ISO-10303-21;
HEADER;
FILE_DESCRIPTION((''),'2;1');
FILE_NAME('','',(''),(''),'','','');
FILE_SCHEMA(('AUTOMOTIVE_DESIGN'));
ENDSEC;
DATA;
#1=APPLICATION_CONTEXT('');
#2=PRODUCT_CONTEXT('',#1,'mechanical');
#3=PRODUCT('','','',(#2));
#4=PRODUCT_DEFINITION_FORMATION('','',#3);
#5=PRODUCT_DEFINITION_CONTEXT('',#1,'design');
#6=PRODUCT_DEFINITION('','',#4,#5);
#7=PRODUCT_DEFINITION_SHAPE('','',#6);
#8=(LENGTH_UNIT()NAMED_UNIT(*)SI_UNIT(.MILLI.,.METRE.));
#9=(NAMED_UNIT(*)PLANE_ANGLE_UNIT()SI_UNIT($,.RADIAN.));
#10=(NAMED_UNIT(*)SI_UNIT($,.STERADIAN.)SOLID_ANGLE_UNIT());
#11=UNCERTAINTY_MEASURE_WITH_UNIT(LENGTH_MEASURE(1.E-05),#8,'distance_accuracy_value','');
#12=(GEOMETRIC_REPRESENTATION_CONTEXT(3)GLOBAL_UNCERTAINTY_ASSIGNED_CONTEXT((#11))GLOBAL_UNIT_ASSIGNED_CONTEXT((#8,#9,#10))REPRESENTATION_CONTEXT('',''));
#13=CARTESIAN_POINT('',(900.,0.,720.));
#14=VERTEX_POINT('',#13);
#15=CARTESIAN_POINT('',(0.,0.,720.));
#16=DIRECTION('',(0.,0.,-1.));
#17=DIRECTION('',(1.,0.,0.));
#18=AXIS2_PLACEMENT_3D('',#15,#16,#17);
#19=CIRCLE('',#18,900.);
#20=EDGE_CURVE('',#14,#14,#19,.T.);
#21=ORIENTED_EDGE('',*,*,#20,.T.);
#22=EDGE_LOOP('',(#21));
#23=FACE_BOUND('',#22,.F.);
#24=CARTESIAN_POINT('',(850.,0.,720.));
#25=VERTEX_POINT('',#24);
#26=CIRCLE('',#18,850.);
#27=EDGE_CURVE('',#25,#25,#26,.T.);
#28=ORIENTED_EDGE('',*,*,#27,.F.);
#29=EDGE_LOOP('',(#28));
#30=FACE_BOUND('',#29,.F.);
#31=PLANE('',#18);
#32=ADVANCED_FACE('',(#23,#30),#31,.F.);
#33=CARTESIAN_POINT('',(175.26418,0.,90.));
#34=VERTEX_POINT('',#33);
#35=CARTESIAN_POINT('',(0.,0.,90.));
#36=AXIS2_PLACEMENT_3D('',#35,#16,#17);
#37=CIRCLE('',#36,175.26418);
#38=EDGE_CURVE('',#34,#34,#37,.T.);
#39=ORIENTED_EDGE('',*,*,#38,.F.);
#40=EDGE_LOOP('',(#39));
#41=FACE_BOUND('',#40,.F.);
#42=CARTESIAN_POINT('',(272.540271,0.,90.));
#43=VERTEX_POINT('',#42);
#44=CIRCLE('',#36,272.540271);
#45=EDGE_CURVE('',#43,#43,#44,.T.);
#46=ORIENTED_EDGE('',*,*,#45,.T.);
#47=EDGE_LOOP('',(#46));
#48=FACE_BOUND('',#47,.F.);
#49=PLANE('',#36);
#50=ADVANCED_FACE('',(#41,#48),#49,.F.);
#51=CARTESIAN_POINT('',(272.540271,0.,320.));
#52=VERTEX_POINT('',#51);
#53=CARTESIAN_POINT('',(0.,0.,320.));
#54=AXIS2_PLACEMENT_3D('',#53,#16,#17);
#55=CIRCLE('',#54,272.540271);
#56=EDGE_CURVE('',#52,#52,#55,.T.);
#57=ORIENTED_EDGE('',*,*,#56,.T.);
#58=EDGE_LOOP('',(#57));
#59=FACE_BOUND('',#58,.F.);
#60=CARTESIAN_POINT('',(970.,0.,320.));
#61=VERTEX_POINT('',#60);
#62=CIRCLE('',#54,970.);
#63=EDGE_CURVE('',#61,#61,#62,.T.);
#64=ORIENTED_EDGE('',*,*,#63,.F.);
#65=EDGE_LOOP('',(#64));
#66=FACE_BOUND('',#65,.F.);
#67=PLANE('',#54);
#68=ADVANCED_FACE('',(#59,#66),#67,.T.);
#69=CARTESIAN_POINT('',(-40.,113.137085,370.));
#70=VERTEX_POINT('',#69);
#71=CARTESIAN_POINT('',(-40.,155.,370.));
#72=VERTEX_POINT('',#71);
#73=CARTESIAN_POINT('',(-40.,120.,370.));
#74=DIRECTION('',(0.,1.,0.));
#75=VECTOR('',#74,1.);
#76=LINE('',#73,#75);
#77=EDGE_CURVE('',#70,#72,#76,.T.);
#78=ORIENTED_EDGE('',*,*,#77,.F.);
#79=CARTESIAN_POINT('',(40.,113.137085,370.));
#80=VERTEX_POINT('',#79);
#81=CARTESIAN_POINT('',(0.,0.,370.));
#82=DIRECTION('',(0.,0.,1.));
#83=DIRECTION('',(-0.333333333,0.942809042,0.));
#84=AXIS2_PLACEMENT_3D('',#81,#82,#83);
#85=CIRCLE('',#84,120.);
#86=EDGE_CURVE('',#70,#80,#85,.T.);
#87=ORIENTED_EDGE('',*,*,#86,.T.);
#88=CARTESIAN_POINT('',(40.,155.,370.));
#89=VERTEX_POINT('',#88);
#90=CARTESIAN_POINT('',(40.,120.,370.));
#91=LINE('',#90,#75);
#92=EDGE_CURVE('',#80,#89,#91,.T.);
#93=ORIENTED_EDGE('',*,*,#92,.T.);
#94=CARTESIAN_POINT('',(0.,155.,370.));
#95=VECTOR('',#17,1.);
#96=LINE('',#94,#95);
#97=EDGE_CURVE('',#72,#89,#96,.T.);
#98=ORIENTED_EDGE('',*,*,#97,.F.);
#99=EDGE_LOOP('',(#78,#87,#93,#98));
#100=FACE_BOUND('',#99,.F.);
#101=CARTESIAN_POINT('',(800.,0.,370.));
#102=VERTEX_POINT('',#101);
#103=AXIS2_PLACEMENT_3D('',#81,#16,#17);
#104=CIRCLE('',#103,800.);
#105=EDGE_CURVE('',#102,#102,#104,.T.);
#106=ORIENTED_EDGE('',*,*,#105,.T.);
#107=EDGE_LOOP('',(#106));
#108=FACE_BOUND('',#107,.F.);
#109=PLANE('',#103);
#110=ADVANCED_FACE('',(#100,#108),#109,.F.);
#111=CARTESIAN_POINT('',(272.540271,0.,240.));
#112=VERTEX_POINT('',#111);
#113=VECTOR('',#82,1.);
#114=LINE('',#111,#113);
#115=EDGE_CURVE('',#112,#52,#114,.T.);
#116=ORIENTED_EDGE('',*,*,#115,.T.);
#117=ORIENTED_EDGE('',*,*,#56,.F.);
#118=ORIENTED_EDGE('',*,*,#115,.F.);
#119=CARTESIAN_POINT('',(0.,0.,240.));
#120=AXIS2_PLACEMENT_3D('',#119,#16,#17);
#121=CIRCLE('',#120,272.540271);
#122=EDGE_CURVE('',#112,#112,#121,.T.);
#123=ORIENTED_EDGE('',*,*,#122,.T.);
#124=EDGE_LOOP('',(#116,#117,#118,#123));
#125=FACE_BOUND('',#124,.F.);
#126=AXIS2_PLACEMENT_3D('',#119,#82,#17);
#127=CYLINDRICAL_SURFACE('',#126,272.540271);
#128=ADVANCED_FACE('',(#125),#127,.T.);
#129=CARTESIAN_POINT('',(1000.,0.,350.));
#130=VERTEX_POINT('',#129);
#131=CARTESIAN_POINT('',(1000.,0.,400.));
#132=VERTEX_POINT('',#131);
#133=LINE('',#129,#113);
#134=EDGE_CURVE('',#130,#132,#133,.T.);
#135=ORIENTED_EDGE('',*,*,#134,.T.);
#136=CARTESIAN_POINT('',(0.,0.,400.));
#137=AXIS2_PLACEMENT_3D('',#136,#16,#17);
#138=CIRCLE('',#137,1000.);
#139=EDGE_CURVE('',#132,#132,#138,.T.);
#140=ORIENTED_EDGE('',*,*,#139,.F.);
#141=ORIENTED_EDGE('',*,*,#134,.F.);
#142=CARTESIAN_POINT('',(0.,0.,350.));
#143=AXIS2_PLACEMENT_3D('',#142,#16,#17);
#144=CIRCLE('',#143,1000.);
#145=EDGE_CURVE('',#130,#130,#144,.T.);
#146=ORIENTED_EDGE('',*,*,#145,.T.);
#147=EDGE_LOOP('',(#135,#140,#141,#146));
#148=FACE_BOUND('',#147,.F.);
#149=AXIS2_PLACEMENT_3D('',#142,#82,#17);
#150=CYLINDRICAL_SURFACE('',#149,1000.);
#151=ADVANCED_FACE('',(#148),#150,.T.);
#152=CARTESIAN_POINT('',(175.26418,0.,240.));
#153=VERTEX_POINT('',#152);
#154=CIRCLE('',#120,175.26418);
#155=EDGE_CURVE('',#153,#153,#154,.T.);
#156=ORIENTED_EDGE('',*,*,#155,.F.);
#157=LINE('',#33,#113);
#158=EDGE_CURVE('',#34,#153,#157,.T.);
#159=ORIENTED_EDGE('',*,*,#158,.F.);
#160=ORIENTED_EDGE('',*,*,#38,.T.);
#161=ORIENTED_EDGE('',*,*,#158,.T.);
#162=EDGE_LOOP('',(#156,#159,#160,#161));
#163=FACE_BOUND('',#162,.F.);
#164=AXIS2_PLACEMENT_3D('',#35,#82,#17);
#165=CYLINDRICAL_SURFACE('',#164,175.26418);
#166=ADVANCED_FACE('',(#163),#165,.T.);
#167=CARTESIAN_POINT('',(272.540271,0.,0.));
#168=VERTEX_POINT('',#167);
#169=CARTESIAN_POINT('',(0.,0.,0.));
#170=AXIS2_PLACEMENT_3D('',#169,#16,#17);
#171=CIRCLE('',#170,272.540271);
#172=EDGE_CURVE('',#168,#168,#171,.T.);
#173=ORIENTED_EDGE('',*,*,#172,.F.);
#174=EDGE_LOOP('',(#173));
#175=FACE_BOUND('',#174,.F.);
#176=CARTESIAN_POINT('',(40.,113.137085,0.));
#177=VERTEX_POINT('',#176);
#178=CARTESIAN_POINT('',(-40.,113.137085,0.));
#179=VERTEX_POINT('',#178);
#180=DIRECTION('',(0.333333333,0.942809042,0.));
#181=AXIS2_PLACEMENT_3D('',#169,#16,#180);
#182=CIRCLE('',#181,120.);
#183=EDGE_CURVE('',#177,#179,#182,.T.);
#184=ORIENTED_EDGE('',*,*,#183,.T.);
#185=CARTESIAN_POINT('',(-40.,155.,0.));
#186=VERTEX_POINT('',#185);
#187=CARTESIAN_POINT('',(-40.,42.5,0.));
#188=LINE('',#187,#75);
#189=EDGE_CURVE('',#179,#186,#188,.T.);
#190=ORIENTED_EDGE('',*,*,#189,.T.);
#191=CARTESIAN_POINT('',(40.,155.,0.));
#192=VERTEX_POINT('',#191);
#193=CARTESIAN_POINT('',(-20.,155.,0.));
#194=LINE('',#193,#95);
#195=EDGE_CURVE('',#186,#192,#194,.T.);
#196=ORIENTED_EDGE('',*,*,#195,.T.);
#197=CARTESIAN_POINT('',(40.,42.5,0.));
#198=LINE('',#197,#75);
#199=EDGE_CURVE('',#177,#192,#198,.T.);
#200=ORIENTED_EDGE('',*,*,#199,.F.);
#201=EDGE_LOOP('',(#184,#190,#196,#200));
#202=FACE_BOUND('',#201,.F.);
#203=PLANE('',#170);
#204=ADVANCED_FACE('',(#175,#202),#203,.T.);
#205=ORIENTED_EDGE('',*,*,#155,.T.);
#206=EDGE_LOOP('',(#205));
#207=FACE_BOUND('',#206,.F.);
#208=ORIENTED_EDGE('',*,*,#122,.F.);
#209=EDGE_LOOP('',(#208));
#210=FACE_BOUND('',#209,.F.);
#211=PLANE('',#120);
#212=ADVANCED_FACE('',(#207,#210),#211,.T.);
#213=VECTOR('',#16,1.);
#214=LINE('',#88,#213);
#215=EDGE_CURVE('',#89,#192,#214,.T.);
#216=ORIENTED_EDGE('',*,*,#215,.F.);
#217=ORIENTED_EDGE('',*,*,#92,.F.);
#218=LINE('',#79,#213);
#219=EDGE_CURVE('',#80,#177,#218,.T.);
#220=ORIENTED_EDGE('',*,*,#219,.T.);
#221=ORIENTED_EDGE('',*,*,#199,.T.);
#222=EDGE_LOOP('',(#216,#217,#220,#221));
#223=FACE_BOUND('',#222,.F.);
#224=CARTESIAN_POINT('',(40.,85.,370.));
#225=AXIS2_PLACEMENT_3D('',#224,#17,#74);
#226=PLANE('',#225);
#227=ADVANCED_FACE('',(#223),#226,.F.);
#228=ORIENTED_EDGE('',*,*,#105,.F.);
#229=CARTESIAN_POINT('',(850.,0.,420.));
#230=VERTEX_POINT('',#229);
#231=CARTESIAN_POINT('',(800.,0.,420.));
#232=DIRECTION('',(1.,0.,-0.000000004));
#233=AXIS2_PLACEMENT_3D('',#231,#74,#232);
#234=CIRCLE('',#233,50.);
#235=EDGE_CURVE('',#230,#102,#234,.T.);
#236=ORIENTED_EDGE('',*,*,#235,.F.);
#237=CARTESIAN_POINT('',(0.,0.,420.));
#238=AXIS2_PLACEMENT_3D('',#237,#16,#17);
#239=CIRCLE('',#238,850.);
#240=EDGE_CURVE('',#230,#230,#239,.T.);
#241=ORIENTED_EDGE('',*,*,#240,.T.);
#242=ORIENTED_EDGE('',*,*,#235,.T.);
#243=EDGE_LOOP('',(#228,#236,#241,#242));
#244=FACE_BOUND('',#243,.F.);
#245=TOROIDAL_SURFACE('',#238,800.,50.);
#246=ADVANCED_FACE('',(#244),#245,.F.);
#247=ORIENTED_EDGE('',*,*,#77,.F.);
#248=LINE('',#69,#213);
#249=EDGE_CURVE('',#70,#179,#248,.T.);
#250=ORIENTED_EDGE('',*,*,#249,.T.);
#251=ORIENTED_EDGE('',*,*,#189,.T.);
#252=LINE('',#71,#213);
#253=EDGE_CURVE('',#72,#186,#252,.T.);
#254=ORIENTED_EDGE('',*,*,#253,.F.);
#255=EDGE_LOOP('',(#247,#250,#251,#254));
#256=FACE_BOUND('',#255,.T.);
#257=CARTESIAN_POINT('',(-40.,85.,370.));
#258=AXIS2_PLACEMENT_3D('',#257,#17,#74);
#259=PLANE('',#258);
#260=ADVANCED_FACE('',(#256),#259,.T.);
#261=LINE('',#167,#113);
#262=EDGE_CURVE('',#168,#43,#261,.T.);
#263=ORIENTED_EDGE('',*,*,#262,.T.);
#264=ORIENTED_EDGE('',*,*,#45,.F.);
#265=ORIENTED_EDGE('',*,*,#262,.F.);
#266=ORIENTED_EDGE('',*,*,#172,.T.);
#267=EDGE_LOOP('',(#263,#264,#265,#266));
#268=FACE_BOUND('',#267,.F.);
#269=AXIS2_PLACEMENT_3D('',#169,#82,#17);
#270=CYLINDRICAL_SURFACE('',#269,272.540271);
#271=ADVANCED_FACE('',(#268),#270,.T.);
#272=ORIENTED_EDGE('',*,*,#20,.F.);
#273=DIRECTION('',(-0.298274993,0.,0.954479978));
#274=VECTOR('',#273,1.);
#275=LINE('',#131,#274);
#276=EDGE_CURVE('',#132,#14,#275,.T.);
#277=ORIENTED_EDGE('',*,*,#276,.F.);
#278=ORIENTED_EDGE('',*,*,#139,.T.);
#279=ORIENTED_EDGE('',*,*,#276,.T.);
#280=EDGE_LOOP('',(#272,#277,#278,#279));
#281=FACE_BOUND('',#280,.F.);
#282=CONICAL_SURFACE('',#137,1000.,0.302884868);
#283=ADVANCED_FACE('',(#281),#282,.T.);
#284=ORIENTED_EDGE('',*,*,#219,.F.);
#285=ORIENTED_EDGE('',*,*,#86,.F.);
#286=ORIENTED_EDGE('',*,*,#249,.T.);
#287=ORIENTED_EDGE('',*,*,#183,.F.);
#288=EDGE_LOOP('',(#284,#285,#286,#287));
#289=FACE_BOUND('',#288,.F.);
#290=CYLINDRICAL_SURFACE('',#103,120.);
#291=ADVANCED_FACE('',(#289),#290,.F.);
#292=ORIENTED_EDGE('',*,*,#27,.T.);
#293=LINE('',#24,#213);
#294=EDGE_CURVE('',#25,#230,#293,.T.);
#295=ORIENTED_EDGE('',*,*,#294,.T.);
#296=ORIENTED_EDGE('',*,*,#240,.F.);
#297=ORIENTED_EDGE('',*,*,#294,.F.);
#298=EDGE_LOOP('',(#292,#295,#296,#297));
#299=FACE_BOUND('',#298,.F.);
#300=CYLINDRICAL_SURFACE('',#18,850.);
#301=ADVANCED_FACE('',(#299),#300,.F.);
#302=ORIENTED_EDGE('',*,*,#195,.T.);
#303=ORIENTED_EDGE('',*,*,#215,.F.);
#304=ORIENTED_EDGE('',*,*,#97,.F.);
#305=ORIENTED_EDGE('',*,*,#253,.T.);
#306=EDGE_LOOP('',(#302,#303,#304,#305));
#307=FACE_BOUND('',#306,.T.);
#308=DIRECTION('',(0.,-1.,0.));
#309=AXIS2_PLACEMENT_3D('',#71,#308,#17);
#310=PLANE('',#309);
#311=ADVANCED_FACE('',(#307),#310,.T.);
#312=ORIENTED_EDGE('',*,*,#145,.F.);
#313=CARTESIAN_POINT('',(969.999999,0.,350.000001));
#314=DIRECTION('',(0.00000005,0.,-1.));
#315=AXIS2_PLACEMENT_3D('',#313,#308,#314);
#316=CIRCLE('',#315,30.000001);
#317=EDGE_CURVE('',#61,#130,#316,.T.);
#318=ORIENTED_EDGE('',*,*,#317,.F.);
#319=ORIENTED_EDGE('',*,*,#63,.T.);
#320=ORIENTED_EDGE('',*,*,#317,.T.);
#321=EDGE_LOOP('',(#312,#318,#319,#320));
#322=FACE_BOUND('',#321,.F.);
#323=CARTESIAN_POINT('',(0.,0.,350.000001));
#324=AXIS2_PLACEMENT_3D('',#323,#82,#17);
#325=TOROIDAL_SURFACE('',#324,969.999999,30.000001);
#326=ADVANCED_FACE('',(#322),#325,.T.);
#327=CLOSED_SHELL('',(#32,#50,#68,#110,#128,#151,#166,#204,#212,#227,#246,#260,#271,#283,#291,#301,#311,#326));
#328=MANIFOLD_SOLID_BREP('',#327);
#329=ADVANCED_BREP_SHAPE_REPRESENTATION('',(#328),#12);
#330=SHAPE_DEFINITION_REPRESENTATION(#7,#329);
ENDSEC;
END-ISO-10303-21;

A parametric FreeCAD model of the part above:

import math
import FreeCAD as App
import Part
import Sketcher
from FreeCAD import Vector
Q = App.Units.Quantity


def add_polygon(sketch, points):
    """Adds a closed chain of lines whose ends are joined by coincident constraints."""
    first, n = sketch.GeometryCount, len(points)
    for a, b in zip(points, points[1:] + points[:1]):
        sketch.addGeometry(Part.LineSegment(App.Vector(*a, 0), App.Vector(*b, 0)), False)
    for i in range(n):
        sketch.addConstraint(Sketcher.Constraint("Coincident", first + i, 2, first + (i + 1) % n, 1))

doc = App.newDocument("Part")
body = doc.addObject("PartDesign::Body", "Body")

# Sketch on XZ plane
sketch1 = body.newObject("Sketcher::SketchObject", "Sketch")
sketch1.AttachmentSupport = (doc.getObject("XZ_Plane"), [""])
sketch1.MapMode = "FlatFace"
sketch1.addGeometry([
    Part.LineSegment(Vector(120, 370, 0), Vector(120, 0, 0)),  # 0
    Part.LineSegment(Vector(120, 0, 0), Vector(273, 0, 0)),  # 1
    Part.LineSegment(Vector(273, 0, 0), Vector(273, 90, 0)),  # 2
    Part.LineSegment(Vector(273, 90, 0), Vector(175, 90, 0)),  # 3
    Part.LineSegment(Vector(175, 90, 0), Vector(175, 240, 0)),  # 4
    Part.LineSegment(Vector(175, 240, 0), Vector(273, 240, 0)),  # 5
    Part.LineSegment(Vector(273, 240, 0), Vector(273, 320, 0)),  # 6
    Part.LineSegment(Vector(273, 320, 0), Vector(970, 320, 0)),  # 7
    Part.ArcOfCircle(Part.Circle(Vector(970, 350, 0), Vector(0, 0, 1), 30), math.radians(-90), math.radians(0)),  # 8
    Part.LineSegment(Vector(1000, 350, 0), Vector(1000, 400, 0)),  # 9
    Part.LineSegment(Vector(1000, 400, 0), Vector(900, 720, 0)),  # 10
    Part.LineSegment(Vector(900, 720, 0), Vector(850, 720, 0)),  # 11
    Part.LineSegment(Vector(850, 720, 0), Vector(850, 420, 0)),  # 12
    Part.ArcOfCircle(Part.Circle(Vector(800, 420, 0), Vector(0, 0, 1), 50), math.radians(-90), math.radians(0)),  # 13
    Part.LineSegment(Vector(800, 370, 0), Vector(120, 370, 0)),  # 14
], False)
sketch1.addConstraint([
    Sketcher.Constraint("Coincident", 0, 2, 1, 1),
    Sketcher.Constraint("Coincident", 1, 2, 2, 1),
    Sketcher.Constraint("Coincident", 2, 2, 3, 1),
    Sketcher.Constraint("Coincident", 3, 2, 4, 1),
    Sketcher.Constraint("Coincident", 4, 2, 5, 1),
    Sketcher.Constraint("Coincident", 5, 2, 6, 1),
    Sketcher.Constraint("Coincident", 6, 2, 7, 1),
    Sketcher.Constraint("Tangent", 7, 2, 8, 1),
    Sketcher.Constraint("Tangent", 8, 2, 9, 1),
    Sketcher.Constraint("Coincident", 9, 2, 10, 1),
    Sketcher.Constraint("Coincident", 10, 2, 11, 1),
    Sketcher.Constraint("Coincident", 11, 2, 12, 1),
    Sketcher.Constraint("Tangent", 12, 2, 13, 2),
    Sketcher.Constraint("Tangent", 13, 1, 14, 1),
    Sketcher.Constraint("Coincident", 14, 2, 0, 1),
    Sketcher.Constraint("Vertical", 0),
    Sketcher.Constraint("Horizontal", 1),
    Sketcher.Constraint("Vertical", 2),
    Sketcher.Constraint("Horizontal", 3),
    Sketcher.Constraint("Vertical", 4),
    Sketcher.Constraint("Horizontal", 5),
    Sketcher.Constraint("Vertical", 6),
    Sketcher.Constraint("Horizontal", 7),
    Sketcher.Constraint("Vertical", 9),
    Sketcher.Constraint("Horizontal", 11),
    Sketcher.Constraint("Vertical", 12),
    Sketcher.Constraint("Horizontal", 14),
    Sketcher.Constraint("PointOnObject", 0, 2, -1),
    Sketcher.Constraint("Vertical", 2, 2, 5, 2),
    Sketcher.Constraint("Equal", 11, 9),
    Sketcher.Constraint("Radius", 8, Q("30.000001 mm")),
    Sketcher.Constraint("Radius", 13, Q("50 mm")),
    Sketcher.Constraint("DistanceX", 11, 2, 11, 1, Q("50 mm")),
    Sketcher.Constraint("DistanceX", 14, 2, 14, 1, Q("680 mm")),
    Sketcher.Constraint("DistanceY", 0, 2, 0, 1, Q("370 mm")),
    Sketcher.Constraint("DistanceY", 2, 1, 2, 2, Q("90 mm")),
    Sketcher.Constraint("DistanceY", 4, 1, 4, 2, Q("150 mm")),
    Sketcher.Constraint("DistanceY", 6, 1, 6, 2, Q("80 mm")),
    Sketcher.Constraint("DistanceY", 12, 2, 12, 1, Q("300 mm")),
    Sketcher.Constraint("DistanceX", -1, 1, 8, 3, Q("969.999999 mm")),
    Sketcher.Constraint("DistanceX", -1, 1, 13, 3, Q("800 mm")),
    Sketcher.Constraint("DistanceX", 1, 1, 1, 2, Q("152.540271 mm")),
    Sketcher.Constraint("DistanceX", 3, 2, 3, 1, Q("97.276091 mm")),
])
revolution = body.newObject("PartDesign::Revolution", "Revolution")
revolution.Profile = sketch1
revolution.ReferenceAxis = (sketch1, ["V_Axis"])
revolution.Angle = 360

# Sketch on XY plane
sketch2 = body.newObject("Sketcher::SketchObject", "Sketch001")
sketch2.AttachmentSupport = (doc.getObject("XY_Plane"), [""])
sketch2.MapMode = "FlatFace"
sketch2.AttachmentOffset = App.Placement(Vector(0, 0, 370), App.Rotation())
add_polygon(sketch2, [(-40, 155), (-40, 85), (40, 85), (40, 155)])  # lines 0-3
sketch2.addConstraint([
    Sketcher.Constraint("Vertical", 0),
    Sketcher.Constraint("Horizontal", 1),
    Sketcher.Constraint("Vertical", 2),
    Sketcher.Constraint("Horizontal", 3),
    Sketcher.Constraint("DistanceX", 1, 1, 1, 2, Q("80 mm")),
    Sketcher.Constraint("DistanceY", 0, 2, 0, 1, Q("70 mm")),
    Sketcher.Constraint("DistanceX", 0, 2, -1, 1, Q("40 mm")),
    Sketcher.Constraint("DistanceY", -1, 1, 0, 2, Q("85 mm")),
])
pocket1 = body.newObject("PartDesign::Pocket", "Pocket")
pocket1.Profile = sketch2
pocket1.Type = "ThroughAll"

doc.recompute()
